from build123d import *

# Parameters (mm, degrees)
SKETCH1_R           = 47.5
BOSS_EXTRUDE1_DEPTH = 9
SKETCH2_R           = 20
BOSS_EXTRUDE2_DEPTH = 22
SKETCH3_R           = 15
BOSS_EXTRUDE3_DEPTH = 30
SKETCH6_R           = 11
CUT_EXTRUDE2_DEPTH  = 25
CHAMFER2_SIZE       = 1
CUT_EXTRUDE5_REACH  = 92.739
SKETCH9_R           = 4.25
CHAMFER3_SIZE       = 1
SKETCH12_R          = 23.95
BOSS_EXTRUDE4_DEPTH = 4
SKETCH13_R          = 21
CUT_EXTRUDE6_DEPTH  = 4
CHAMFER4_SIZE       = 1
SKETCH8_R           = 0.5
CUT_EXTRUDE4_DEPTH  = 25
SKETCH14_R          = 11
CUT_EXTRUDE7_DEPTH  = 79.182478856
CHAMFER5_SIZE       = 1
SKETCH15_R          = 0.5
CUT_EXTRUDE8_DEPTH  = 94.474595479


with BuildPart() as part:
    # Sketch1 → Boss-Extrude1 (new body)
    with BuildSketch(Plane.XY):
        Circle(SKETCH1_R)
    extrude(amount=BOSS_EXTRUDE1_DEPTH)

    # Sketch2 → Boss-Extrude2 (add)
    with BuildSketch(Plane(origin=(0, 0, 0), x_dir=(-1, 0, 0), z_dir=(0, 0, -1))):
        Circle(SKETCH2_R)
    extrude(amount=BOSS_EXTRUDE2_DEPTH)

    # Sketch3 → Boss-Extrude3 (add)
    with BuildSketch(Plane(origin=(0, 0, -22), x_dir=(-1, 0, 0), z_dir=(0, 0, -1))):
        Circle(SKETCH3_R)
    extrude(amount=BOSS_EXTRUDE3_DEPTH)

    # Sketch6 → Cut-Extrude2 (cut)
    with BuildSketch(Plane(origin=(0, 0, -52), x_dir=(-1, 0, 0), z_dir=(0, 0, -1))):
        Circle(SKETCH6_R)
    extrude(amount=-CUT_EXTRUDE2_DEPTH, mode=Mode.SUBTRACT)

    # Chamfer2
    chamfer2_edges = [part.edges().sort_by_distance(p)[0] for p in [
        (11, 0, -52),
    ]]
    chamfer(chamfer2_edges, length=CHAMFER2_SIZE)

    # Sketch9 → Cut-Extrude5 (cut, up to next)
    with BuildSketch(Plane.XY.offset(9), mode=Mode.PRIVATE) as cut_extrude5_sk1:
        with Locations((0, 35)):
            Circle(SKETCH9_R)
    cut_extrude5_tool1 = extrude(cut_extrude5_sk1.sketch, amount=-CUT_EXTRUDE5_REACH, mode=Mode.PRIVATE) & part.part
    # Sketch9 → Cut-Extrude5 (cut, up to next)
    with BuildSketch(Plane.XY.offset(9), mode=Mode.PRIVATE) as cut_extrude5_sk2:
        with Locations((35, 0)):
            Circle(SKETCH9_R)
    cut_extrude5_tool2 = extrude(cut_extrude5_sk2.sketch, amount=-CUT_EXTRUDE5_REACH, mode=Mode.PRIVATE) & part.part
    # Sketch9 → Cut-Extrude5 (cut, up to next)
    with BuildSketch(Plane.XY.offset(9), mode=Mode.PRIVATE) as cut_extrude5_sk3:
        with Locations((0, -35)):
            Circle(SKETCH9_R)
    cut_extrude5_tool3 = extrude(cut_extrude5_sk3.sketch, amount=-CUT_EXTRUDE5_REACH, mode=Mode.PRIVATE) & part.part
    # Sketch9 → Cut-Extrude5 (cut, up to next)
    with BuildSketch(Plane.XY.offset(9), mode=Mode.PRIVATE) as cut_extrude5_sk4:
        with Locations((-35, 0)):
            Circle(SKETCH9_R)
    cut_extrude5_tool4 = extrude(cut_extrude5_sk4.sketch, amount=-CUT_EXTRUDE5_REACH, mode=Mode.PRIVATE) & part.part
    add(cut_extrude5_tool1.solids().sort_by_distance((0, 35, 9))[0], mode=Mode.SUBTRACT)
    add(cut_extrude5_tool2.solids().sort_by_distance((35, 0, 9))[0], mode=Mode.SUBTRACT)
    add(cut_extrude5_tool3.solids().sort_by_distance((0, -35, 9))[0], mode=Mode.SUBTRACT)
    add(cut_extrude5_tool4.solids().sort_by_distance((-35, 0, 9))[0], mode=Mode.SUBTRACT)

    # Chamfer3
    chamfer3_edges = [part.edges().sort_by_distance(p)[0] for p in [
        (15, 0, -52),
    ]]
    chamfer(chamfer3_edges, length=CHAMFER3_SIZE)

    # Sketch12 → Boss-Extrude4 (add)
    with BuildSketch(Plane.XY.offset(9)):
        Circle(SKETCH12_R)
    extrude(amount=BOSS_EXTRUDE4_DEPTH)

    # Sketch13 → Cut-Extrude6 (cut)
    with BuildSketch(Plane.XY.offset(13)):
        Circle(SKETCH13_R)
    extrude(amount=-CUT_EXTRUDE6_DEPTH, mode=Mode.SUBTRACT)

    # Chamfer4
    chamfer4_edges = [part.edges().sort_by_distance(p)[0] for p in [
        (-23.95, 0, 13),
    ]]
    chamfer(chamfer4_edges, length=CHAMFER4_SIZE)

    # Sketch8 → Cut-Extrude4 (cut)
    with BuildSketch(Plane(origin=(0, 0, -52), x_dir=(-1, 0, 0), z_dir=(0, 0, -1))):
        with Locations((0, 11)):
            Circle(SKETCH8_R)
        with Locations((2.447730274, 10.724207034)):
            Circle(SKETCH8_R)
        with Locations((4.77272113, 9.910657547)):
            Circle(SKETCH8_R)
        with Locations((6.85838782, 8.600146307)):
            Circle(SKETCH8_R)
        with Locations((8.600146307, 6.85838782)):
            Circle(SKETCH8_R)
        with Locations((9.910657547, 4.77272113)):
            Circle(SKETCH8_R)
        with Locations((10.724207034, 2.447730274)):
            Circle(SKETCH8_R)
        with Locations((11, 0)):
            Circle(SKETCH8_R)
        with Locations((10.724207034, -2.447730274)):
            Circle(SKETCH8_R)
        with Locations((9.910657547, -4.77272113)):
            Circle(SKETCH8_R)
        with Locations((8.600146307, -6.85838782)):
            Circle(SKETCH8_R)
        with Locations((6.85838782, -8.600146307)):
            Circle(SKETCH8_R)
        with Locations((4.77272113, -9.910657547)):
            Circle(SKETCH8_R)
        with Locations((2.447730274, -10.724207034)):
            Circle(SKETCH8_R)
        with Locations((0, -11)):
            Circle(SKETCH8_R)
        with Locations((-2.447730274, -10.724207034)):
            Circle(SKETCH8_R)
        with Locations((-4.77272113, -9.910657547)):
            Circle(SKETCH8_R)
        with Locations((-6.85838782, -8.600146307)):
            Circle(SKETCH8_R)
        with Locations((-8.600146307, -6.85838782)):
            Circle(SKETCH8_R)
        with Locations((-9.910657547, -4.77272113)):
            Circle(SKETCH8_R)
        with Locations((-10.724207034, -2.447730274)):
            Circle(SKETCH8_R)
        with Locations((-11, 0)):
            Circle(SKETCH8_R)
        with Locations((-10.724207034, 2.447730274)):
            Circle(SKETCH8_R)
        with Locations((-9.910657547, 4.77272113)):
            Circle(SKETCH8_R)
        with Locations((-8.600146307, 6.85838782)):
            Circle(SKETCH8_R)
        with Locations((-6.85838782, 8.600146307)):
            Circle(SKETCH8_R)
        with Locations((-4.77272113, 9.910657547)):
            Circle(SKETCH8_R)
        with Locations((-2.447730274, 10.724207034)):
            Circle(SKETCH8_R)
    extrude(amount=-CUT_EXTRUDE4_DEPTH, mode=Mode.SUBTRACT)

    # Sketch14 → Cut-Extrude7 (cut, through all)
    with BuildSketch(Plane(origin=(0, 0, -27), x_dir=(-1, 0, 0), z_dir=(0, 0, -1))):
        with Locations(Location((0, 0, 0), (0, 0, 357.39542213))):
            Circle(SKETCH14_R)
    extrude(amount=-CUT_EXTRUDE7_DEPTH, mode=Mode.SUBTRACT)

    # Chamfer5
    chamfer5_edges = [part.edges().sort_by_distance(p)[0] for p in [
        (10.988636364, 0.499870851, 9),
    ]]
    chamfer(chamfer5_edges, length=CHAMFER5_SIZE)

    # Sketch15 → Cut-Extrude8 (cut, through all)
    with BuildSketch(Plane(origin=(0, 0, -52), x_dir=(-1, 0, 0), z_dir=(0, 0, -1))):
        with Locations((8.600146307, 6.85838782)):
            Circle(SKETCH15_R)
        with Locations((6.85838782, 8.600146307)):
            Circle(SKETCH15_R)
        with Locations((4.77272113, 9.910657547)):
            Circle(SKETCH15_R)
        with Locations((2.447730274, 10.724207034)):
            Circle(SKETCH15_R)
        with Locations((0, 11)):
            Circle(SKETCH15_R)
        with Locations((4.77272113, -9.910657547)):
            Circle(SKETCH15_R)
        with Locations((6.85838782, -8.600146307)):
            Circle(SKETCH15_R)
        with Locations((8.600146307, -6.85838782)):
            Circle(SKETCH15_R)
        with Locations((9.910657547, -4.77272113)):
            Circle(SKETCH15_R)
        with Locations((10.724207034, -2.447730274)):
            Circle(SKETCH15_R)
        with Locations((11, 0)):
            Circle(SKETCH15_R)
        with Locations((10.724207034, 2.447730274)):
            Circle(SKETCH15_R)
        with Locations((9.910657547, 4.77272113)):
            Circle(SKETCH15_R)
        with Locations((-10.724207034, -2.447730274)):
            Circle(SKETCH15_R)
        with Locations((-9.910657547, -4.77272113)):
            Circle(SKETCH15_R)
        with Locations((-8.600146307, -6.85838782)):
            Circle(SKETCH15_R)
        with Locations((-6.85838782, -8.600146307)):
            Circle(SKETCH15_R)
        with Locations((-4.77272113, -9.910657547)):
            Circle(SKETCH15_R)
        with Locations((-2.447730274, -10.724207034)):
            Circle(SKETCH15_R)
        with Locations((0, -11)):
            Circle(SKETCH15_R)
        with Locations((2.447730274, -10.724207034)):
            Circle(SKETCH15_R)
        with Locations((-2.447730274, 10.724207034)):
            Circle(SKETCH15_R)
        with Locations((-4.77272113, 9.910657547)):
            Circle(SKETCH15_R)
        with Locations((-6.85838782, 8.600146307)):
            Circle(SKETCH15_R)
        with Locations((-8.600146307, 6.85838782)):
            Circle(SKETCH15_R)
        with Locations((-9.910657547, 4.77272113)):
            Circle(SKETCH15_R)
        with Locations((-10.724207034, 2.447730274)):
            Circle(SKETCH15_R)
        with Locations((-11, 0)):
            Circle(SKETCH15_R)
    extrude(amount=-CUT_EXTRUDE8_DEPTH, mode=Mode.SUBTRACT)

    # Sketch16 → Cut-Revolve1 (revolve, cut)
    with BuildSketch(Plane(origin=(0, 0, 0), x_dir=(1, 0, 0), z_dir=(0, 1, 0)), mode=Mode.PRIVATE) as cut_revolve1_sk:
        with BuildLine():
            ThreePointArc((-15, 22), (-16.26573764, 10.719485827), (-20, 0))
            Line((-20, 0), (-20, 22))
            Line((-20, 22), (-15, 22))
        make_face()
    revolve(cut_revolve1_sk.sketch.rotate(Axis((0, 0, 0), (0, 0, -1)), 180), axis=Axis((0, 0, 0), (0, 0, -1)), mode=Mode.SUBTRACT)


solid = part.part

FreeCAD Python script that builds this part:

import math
import FreeCAD as App
import Part
import Sketcher


def edges_at(feature, points):
    """Names of the edges that pass closest to the given points."""
    edges = feature.Shape.Edges
    near = lambda p: min(range(len(edges)), key=lambda i: edges[i].distToShape(Part.Vertex(*p))[0])
    return sorted({f"Edge{near(p) + 1}" for p in points})

doc = App.newDocument("Part")
body = doc.addObject("PartDesign::Body", "Body")

# Sketch on XY plane
sketch1 = body.newObject("Sketcher::SketchObject", "Sketch")
sketch1.AttachmentSupport = (doc.getObject("XY_Plane"), [""])
sketch1.MapMode = "FlatFace"
sketch1.addGeometry(Part.Circle(App.Vector(0, 0, 0), App.Vector(0, 0, 1), 48), False)
sketch1.addConstraint([
    Sketcher.Constraint("Coincident", 0, 3, -1, 1),
    Sketcher.Constraint("Diameter", 0, 95.0),
])
pad1 = body.newObject("PartDesign::Pad", "Pad")
pad1.Profile = sketch1
pad1.Length = 9

# Sketch on XY plane
sketch2 = body.newObject("Sketcher::SketchObject", "Sketch001")
sketch2.AttachmentSupport = (doc.getObject("XY_Plane"), [""])
sketch2.MapMode = "FlatFace"
sketch2.addGeometry(Part.Circle(App.Vector(0, 0, 0), App.Vector(0, 0, 1), 20), False)
sketch2.addConstraint([
    Sketcher.Constraint("Coincident", 0, 3, -1, 1),
    Sketcher.Constraint("Diameter", 0, 40.0),
])
pad2 = body.newObject("PartDesign::Pad", "Pad001")
pad2.Profile = sketch2
pad2.Length = 22
pad2.Reversed = True

# Sketch on XY plane
sketch3 = body.newObject("Sketcher::SketchObject", "Sketch002")
sketch3.AttachmentSupport = (doc.getObject("XY_Plane"), [""])
sketch3.MapMode = "FlatFace"
sketch3.AttachmentOffset = App.Placement(App.Vector(0, 0, -22), App.Rotation())
sketch3.addGeometry(Part.Circle(App.Vector(0, 0, 0), App.Vector(0, 0, 1), 15), False)
sketch3.addConstraint([
    Sketcher.Constraint("Coincident", 0, 3, -1, 1),
    Sketcher.Constraint("Diameter", 0, 30.0),
])
pad3 = body.newObject("PartDesign::Pad", "Pad002")
pad3.Profile = sketch3
pad3.Length = 30
pad3.Reversed = True

# Sketch on XY plane
sketch4 = body.newObject("Sketcher::SketchObject", "Sketch003")
sketch4.AttachmentSupport = (doc.getObject("XY_Plane"), [""])
sketch4.MapMode = "FlatFace"
sketch4.AttachmentOffset = App.Placement(App.Vector(0, 0, -52), App.Rotation())
sketch4.addGeometry(Part.Circle(App.Vector(0, 0, 0), App.Vector(0, 0, 1), 11), False)
sketch4.addConstraint([
    Sketcher.Constraint("Coincident", 0, 3, -1, 1),
    Sketcher.Constraint("Diameter", 0, 22.0),
])
pocket1 = body.newObject("PartDesign::Pocket", "Pocket")
pocket1.Profile = sketch4
pocket1.Length = 25
pocket1.Reversed = True
doc.recompute()

chamfer = body.newObject("PartDesign::Chamfer", "Chamfer")
chamfer.Base = (pocket1, edges_at(pocket1, [(11, 0, -52)]))
chamfer.Size = 1

# Sketch on XY plane
sketch5 = body.newObject("Sketcher::SketchObject", "Sketch004")
sketch5.AttachmentSupport = (doc.getObject("XY_Plane"), [""])
sketch5.MapMode = "FlatFace"
sketch5.AttachmentOffset = App.Placement(App.Vector(0, 0, 9), App.Rotation())
sketch5.addGeometry(Part.Circle(App.Vector(0, 35, 0), App.Vector(0, 0, 1), 4.2), False)
sketch5.addConstraint([
    Sketcher.Constraint("PointOnObject", 0, 3, -2),
    Sketcher.Constraint("Diameter", 0, 8.5),
    Sketcher.Constraint("DistanceY", -1, 1, 0, 3, 35.0),
])
pocket2 = body.newObject("PartDesign::Pocket", "Pocket001")
pocket2.Profile = sketch5
pocket2.Type = "UpToFirst"

# Sketch on XY plane
sketch6 = body.newObject("Sketcher::SketchObject", "Sketch005")
sketch6.AttachmentSupport = (doc.getObject("XY_Plane"), [""])
sketch6.MapMode = "FlatFace"
sketch6.AttachmentOffset = App.Placement(App.Vector(0, 0, 9), App.Rotation())
sketch6.addGeometry(Part.Circle(App.Vector(35, 0, 0), App.Vector(0, 0, 1), 4.2), False)
sketch6.addConstraint([
    Sketcher.Constraint("PointOnObject", 0, 3, -1),
    Sketcher.Constraint("Diameter", 0, 8.5),
    Sketcher.Constraint("DistanceX", -1, 1, 0, 3, 35.0),
])
pocket3 = body.newObject("PartDesign::Pocket", "Pocket002")
pocket3.Profile = sketch6
pocket3.Type = "UpToFirst"

# Sketch on XY plane
sketch7 = body.newObject("Sketcher::SketchObject", "Sketch006")
sketch7.AttachmentSupport = (doc.getObject("XY_Plane"), [""])
sketch7.MapMode = "FlatFace"
sketch7.AttachmentOffset = App.Placement(App.Vector(0, 0, 9), App.Rotation())
sketch7.addGeometry(Part.Circle(App.Vector(0, -35, 0), App.Vector(0, 0, 1), 4.2), False)
sketch7.addConstraint([
    Sketcher.Constraint("PointOnObject", 0, 3, -2),
    Sketcher.Constraint("Diameter", 0, 8.5),
    Sketcher.Constraint("DistanceY", 0, 3, -1, 1, 35.0),
])
pocket4 = body.newObject("PartDesign::Pocket", "Pocket003")
pocket4.Profile = sketch7
pocket4.Type = "UpToFirst"

# Sketch on XY plane
sketch8 = body.newObject("Sketcher::SketchObject", "Sketch007")
sketch8.AttachmentSupport = (doc.getObject("XY_Plane"), [""])
sketch8.MapMode = "FlatFace"
sketch8.AttachmentOffset = App.Placement(App.Vector(0, 0, 9), App.Rotation())
sketch8.addGeometry(Part.Circle(App.Vector(-35, 0, 0), App.Vector(0, 0, 1), 4.2), False)
sketch8.addConstraint([
    Sketcher.Constraint("PointOnObject", 0, 3, -1),
    Sketcher.Constraint("Diameter", 0, 8.5),
    Sketcher.Constraint("DistanceX", 0, 3, -1, 1, 35.0),
])
pocket5 = body.newObject("PartDesign::Pocket", "Pocket004")
pocket5.Profile = sketch8
pocket5.Type = "UpToFirst"
doc.recompute()

chamfer2 = body.newObject("PartDesign::Chamfer", "Chamfer001")
chamfer2.Base = (pocket5, edges_at(pocket5, [(15, 0, -52)]))
chamfer2.Size = 1

# Sketch on XY plane
sketch9 = body.newObject("Sketcher::SketchObject", "Sketch008")
sketch9.AttachmentSupport = (doc.getObject("XY_Plane"), [""])
sketch9.MapMode = "FlatFace"
sketch9.AttachmentOffset = App.Placement(App.Vector(0, 0, 9), App.Rotation())
sketch9.addGeometry(Part.Circle(App.Vector(0, 0, 0), App.Vector(0, 0, 1), 24), False)
sketch9.addConstraint([
    Sketcher.Constraint("Coincident", 0, 3, -1, 1),
    Sketcher.Constraint("Diameter", 0, 47.9),
])
pad4 = body.newObject("PartDesign::Pad", "Pad003")
pad4.Profile = sketch9
pad4.Length = 4

# Sketch on XY plane
sketch10 = body.newObject("Sketcher::SketchObject", "Sketch009")
sketch10.AttachmentSupport = (doc.getObject("XY_Plane"), [""])
sketch10.MapMode = "FlatFace"
sketch10.AttachmentOffset = App.Placement(App.Vector(0, 0, 13), App.Rotation())
sketch10.addGeometry(Part.Circle(App.Vector(0, 0, 0), App.Vector(0, 0, 1), 21), False)
sketch10.addConstraint([
    Sketcher.Constraint("Coincident", 0, 3, -1, 1),
    Sketcher.Constraint("Diameter", 0, 42.0),
])
pocket6 = body.newObject("PartDesign::Pocket", "Pocket005")
pocket6.Profile = sketch10
pocket6.Length = 4
doc.recompute()

chamfer3 = body.newObject("PartDesign::Chamfer", "Chamfer002")
chamfer3.Base = (pocket6, edges_at(pocket6, [(-23.95, 0, 13)]))
chamfer3.Size = 1

# Sketch on XY plane
sketch11 = body.newObject("Sketcher::SketchObject", "Sketch010")
sketch11.AttachmentSupport = (doc.getObject("XY_Plane"), [""])
sketch11.MapMode = "FlatFace"
sketch11.AttachmentOffset = App.Placement(App.Vector(0, 0, -52), App.Rotation())
sketch11.addGeometry([
    Part.Circle(App.Vector(0, 11, 0), App.Vector(0, 0, 1), 0.5),  # 0
    Part.Circle(App.Vector(-2.4, 10.7, 0), App.Vector(0, 0, 1), 0.5),  # 1
    Part.Circle(App.Vector(-4.8, 9.9, 0), App.Vector(0, 0, 1), 0.5),  # 2
    Part.Circle(App.Vector(-6.9, 8.6, 0), App.Vector(0, 0, 1), 0.5),  # 3
    Part.Circle(App.Vector(-8.6, 6.9, 0), App.Vector(0, 0, 1), 0.5),  # 4
    Part.Circle(App.Vector(-9.9, 4.8, 0), App.Vector(0, 0, 1), 0.5),  # 5
    Part.Circle(App.Vector(-10.7, 2.4, 0), App.Vector(0, 0, 1), 0.5),  # 6
    Part.Circle(App.Vector(-11, 0, 0), App.Vector(0, 0, 1), 0.5),  # 7
    Part.Circle(App.Vector(-10.7, -2.4, 0), App.Vector(0, 0, 1), 0.5),  # 8
    Part.Circle(App.Vector(-9.9, -4.8, 0), App.Vector(0, 0, 1), 0.5),  # 9
    Part.Circle(App.Vector(-8.6, -6.9, 0), App.Vector(0, 0, 1), 0.5),  # 10
    Part.Circle(App.Vector(-6.9, -8.6, 0), App.Vector(0, 0, 1), 0.5),  # 11
    Part.Circle(App.Vector(-4.8, -9.9, 0), App.Vector(0, 0, 1), 0.5),  # 12
    Part.Circle(App.Vector(-2.4, -10.7, 0), App.Vector(0, 0, 1), 0.5),  # 13
    Part.Circle(App.Vector(0, -11, 0), App.Vector(0, 0, 1), 0.5),  # 14
    Part.Circle(App.Vector(2.4, -10.7, 0), App.Vector(0, 0, 1), 0.5),  # 15
    Part.Circle(App.Vector(4.8, -9.9, 0), App.Vector(0, 0, 1), 0.5),  # 16
    Part.Circle(App.Vector(6.9, -8.6, 0), App.Vector(0, 0, 1), 0.5),  # 17
    Part.Circle(App.Vector(8.6, -6.9, 0), App.Vector(0, 0, 1), 0.5),  # 18
    Part.Circle(App.Vector(9.9, -4.8, 0), App.Vector(0, 0, 1), 0.5),  # 19
    Part.Circle(App.Vector(10.7, -2.4, 0), App.Vector(0, 0, 1), 0.5),  # 20
    Part.Circle(App.Vector(11, 0, 0), App.Vector(0, 0, 1), 0.5),  # 21
    Part.Circle(App.Vector(10.7, 2.4, 0), App.Vector(0, 0, 1), 0.5),  # 22
    Part.Circle(App.Vector(9.9, 4.8, 0), App.Vector(0, 0, 1), 0.5),  # 23
    Part.Circle(App.Vector(8.6, 6.9, 0), App.Vector(0, 0, 1), 0.5),  # 24
    Part.Circle(App.Vector(6.9, 8.6, 0), App.Vector(0, 0, 1), 0.5),  # 25
    Part.Circle(App.Vector(4.8, 9.9, 0), App.Vector(0, 0, 1), 0.5),  # 26
    Part.Circle(App.Vector(2.4, 10.7, 0), App.Vector(0, 0, 1), 0.5),  # 27
], False)
sketch11.addConstraint([
    Sketcher.Constraint("Equal", 0, 1),
    Sketcher.Constraint("Equal", 1, 2),
    Sketcher.Constraint("Equal", 2, 3),
    Sketcher.Constraint("Equal", 3, 4),
    Sketcher.Constraint("Equal", 4, 5),
    Sketcher.Constraint("Equal", 5, 6),
    Sketcher.Constraint("Equal", 6, 7),
    Sketcher.Constraint("Equal", 7, 8),
    Sketcher.Constraint("Equal", 8, 9),
    Sketcher.Constraint("Equal", 9, 10),
    Sketcher.Constraint("Equal", 10, 11),
    Sketcher.Constraint("Equal", 11, 12),
    Sketcher.Constraint("Equal", 12, 13),
    Sketcher.Constraint("Equal", 13, 14),
    Sketcher.Constraint("Equal", 14, 15),
    Sketcher.Constraint("Equal", 15, 16),
    Sketcher.Constraint("Equal", 16, 17),
    Sketcher.Constraint("Equal", 17, 18),
    Sketcher.Constraint("Equal", 18, 19),
    Sketcher.Constraint("Equal", 19, 20),
    Sketcher.Constraint("Equal", 20, 21),
    Sketcher.Constraint("Equal", 21, 22),
    Sketcher.Constraint("Equal", 22, 23),
    Sketcher.Constraint("Equal", 23, 24),
    Sketcher.Constraint("Equal", 24, 25),
    Sketcher.Constraint("Equal", 25, 26),
    Sketcher.Constraint("Equal", 26, 27),
    Sketcher.Constraint("Symmetric", 0, 3, 14, 3, -1, 1),
    Sketcher.Constraint("Symmetric", 1, 3, 15, 3, -1, 1),
    Sketcher.Constraint("Symmetric", 2, 3, 16, 3, -1, 1),
    Sketcher.Constraint("Symmetric", 3, 3, 17, 3, -1, 1),
    Sketcher.Constraint("Symmetric", 4, 3, 18, 3, -1, 1),
    Sketcher.Constraint("Symmetric", 5, 3, 19, 3, -1, 1),
    Sketcher.Constraint("Symmetric", 6, 3, 20, 3, -1, 1),
    Sketcher.Constraint("Symmetric", 7, 3, 21, 3, -1, 1),
    Sketcher.Constraint("Symmetric", 8, 3, 22, 3, -1, 1),
    Sketcher.Constraint("Symmetric", 9, 3, 23, 3, -1, 1),
    Sketcher.Constraint("Symmetric", 10, 3, 24, 3, -1, 1),
    Sketcher.Constraint("Symmetric", 11, 3, 25, 3, -1, 1),
    Sketcher.Constraint("Symmetric", 12, 3, 26, 3, -1, 1),
    Sketcher.Constraint("Symmetric", 13, 3, 27, 3, -1, 1),
    Sketcher.Constraint("Symmetric", 13, 3, 15, 3, -2),
    Sketcher.Constraint("Symmetric", 12, 3, 16, 3, -2),
    Sketcher.Constraint("Symmetric", 11, 3, 17, 3, -2),
    Sketcher.Constraint("Symmetric", 10, 3, 18, 3, -2),
    Sketcher.Constraint("Symmetric", 9, 3, 19, 3, -2),
    Sketcher.Constraint("Symmetric", 8, 3, 20, 3, -2),
    Sketcher.Constraint("PointOnObject", 0, 3, -2),
    Sketcher.Constraint("PointOnObject", 7, 3, -1),
    Sketcher.Constraint("Diameter", 0, 1.0),
    Sketcher.Constraint("DistanceY", -1, 1, 0, 3, 11.0),
    Sketcher.Constraint("DistanceX", 7, 3, -1, 1, 11.0),
    Sketcher.Constraint("DistanceX", 1, 3, -1, 1, 2.44773),
    Sketcher.Constraint("DistanceX", 2, 3, -1, 1, 4.772721),
    Sketcher.Constraint("DistanceY", -1, 1, 5, 3, 4.772721),
    Sketcher.Constraint("DistanceY", -1, 1, 6, 3, 2.44773),
    Sketcher.Constraint("DistanceY", 2, 3, 1, 3, 0.813549),
    Sketcher.Constraint("DistanceY", 3, 3, 2, 3, 1.310511),
    Sketcher.Constraint("DistanceX", 4, 3, 3, 3, 1.741758),
    Sketcher.Constraint("DistanceY", 4, 3, 3, 3, 1.741758),
    Sketcher.Constraint("DistanceX", 5, 3, 4, 3, 1.310511),
    Sketcher.Constraint("DistanceX", 6, 3, 5, 3, 0.813549),
    Sketcher.Constraint("DistanceY", 8, 3, 4, 3, 9.306118),
    Sketcher.Constraint("DistanceX", 11, 3, 15, 3, 9.306118),
])
pocket7 = body.newObject("PartDesign::Pocket", "Pocket006")
pocket7.Profile = sketch11
pocket7.Length = 25
pocket7.Reversed = True

# Sketch on XY plane
sketch12 = body.newObject("Sketcher::SketchObject", "Sketch011")
sketch12.AttachmentSupport = (doc.getObject("XY_Plane"), [""])
sketch12.MapMode = "FlatFace"
sketch12.AttachmentOffset = App.Placement(App.Vector(0, 0, -27), App.Rotation())
sketch12.addGeometry(Part.Circle(App.Vector(0, 0, 0), App.Vector(0, 0, 1), 11), False)
sketch12.addConstraint([
    Sketcher.Constraint("Coincident", 0, 3, -1, 1),
    Sketcher.Constraint("Diameter", 0, 22.0),
])
pocket8 = body.newObject("PartDesign::Pocket", "Pocket007")
pocket8.Profile = sketch12
pocket8.Type = "ThroughAll"
pocket8.Reversed = True
doc.recompute()

chamfer4 = body.newObject("PartDesign::Chamfer", "Chamfer003")
chamfer4.Base = (pocket8, edges_at(pocket8, [(10.989, 0.5, 9)]))
chamfer4.Size = 1

# Sketch on XY plane
sketch13 = body.newObject("Sketcher::SketchObject", "Sketch012")
sketch13.AttachmentSupport = (doc.getObject("XY_Plane"), [""])
sketch13.MapMode = "FlatFace"
sketch13.AttachmentOffset = App.Placement(App.Vector(0, 0, -52), App.Rotation())
sketch13.addGeometry([
    Part.Circle(App.Vector(-8.6, 6.9, 0), App.Vector(0, 0, 1), 0.5),  # 0
    Part.Circle(App.Vector(-6.9, 8.6, 0), App.Vector(0, 0, 1), 0.5),  # 1
    Part.Circle(App.Vector(-4.8, 9.9, 0), App.Vector(0, 0, 1), 0.5),  # 2
    Part.Circle(App.Vector(-2.4, 10.7, 0), App.Vector(0, 0, 1), 0.5),  # 3
    Part.Circle(App.Vector(0, 11, 0), App.Vector(0, 0, 1), 0.5),  # 4
    Part.Circle(App.Vector(-4.8, -9.9, 0), App.Vector(0, 0, 1), 0.5),  # 5
    Part.Circle(App.Vector(-6.9, -8.6, 0), App.Vector(0, 0, 1), 0.5),  # 6
    Part.Circle(App.Vector(-8.6, -6.9, 0), App.Vector(0, 0, 1), 0.5),  # 7
    Part.Circle(App.Vector(-9.9, -4.8, 0), App.Vector(0, 0, 1), 0.5),  # 8
    Part.Circle(App.Vector(-10.7, -2.4, 0), App.Vector(0, 0, 1), 0.5),  # 9
    Part.Circle(App.Vector(-11, 0, 0), App.Vector(0, 0, 1), 0.5),  # 10
    Part.Circle(App.Vector(-10.7, 2.4, 0), App.Vector(0, 0, 1), 0.5),  # 11
    Part.Circle(App.Vector(-9.9, 4.8, 0), App.Vector(0, 0, 1), 0.5),  # 12
    Part.Circle(App.Vector(10.7, -2.4, 0), App.Vector(0, 0, 1), 0.5),  # 13
    Part.Circle(App.Vector(9.9, -4.8, 0), App.Vector(0, 0, 1), 0.5),  # 14
    Part.Circle(App.Vector(8.6, -6.9, 0), App.Vector(0, 0, 1), 0.5),  # 15
    Part.Circle(App.Vector(6.9, -8.6, 0), App.Vector(0, 0, 1), 0.5),  # 16
    Part.Circle(App.Vector(4.8, -9.9, 0), App.Vector(0, 0, 1), 0.5),  # 17
    Part.Circle(App.Vector(2.4, -10.7, 0), App.Vector(0, 0, 1), 0.5),  # 18
    Part.Circle(App.Vector(0, -11, 0), App.Vector(0, 0, 1), 0.5),  # 19
    Part.Circle(App.Vector(-2.4, -10.7, 0), App.Vector(0, 0, 1), 0.5),  # 20
    Part.Circle(App.Vector(2.4, 10.7, 0), App.Vector(0, 0, 1), 0.5),  # 21
    Part.Circle(App.Vector(4.8, 9.9, 0), App.Vector(0, 0, 1), 0.5),  # 22
    Part.Circle(App.Vector(6.9, 8.6, 0), App.Vector(0, 0, 1), 0.5),  # 23
    Part.Circle(App.Vector(8.6, 6.9, 0), App.Vector(0, 0, 1), 0.5),  # 24
    Part.Circle(App.Vector(9.9, 4.8, 0), App.Vector(0, 0, 1), 0.5),  # 25
    Part.Circle(App.Vector(10.7, 2.4, 0), App.Vector(0, 0, 1), 0.5),  # 26
    Part.Circle(App.Vector(11, 0, 0), App.Vector(0, 0, 1), 0.5),  # 27
], False)
sketch13.addConstraint([
    Sketcher.Constraint("Equal", 0, 1),
    Sketcher.Constraint("Equal", 1, 2),
    Sketcher.Constraint("Equal", 2, 3),
    Sketcher.Constraint("Equal", 3, 4),
    Sketcher.Constraint("Equal", 4, 5),
    Sketcher.Constraint("Equal", 5, 6),
    Sketcher.Constraint("Equal", 6, 7),
    Sketcher.Constraint("Equal", 7, 8),
    Sketcher.Constraint("Equal", 8, 9),
    Sketcher.Constraint("Equal", 9, 10),
    Sketcher.Constraint("Equal", 10, 11),
    Sketcher.Constraint("Equal", 11, 12),
    Sketcher.Constraint("Equal", 12, 13),
    Sketcher.Constraint("Equal", 13, 14),
    Sketcher.Constraint("Equal", 14, 15),
    Sketcher.Constraint("Equal", 15, 16),
    Sketcher.Constraint("Equal", 16, 17),
    Sketcher.Constraint("Equal", 17, 18),
    Sketcher.Constraint("Equal", 18, 19),
    Sketcher.Constraint("Equal", 19, 20),
    Sketcher.Constraint("Equal", 20, 21),
    Sketcher.Constraint("Equal", 21, 22),
    Sketcher.Constraint("Equal", 22, 23),
    Sketcher.Constraint("Equal", 23, 24),
    Sketcher.Constraint("Equal", 24, 25),
    Sketcher.Constraint("Equal", 25, 26),
    Sketcher.Constraint("Equal", 26, 27),
    Sketcher.Constraint("Symmetric", 11, 3, 13, 3, -1, 1),
    Sketcher.Constraint("Symmetric", 12, 3, 14, 3, -1, 1),
    Sketcher.Constraint("Symmetric", 0, 3, 15, 3, -1, 1),
    Sketcher.Constraint("Symmetric", 1, 3, 16, 3, -1, 1),
    Sketcher.Constraint("Symmetric", 2, 3, 17, 3, -1, 1),
    Sketcher.Constraint("Symmetric", 3, 3, 18, 3, -1, 1),
    Sketcher.Constraint("Symmetric", 4, 3, 19, 3, -1, 1),
    Sketcher.Constraint("Symmetric", 20, 3, 21, 3, -1, 1),
    Sketcher.Constraint("Symmetric", 5, 3, 22, 3, -1, 1),
    Sketcher.Constraint("Symmetric", 6, 3, 23, 3, -1, 1),
    Sketcher.Constraint("Symmetric", 7, 3, 24, 3, -1, 1),
    Sketcher.Constraint("Symmetric", 8, 3, 25, 3, -1, 1),
    Sketcher.Constraint("Symmetric", 9, 3, 26, 3, -1, 1),
    Sketcher.Constraint("Symmetric", 10, 3, 27, 3, -1, 1),
    Sketcher.Constraint("Symmetric", 9, 3, 13, 3, -2),
    Sketcher.Constraint("Symmetric", 8, 3, 14, 3, -2),
    Sketcher.Constraint("Symmetric", 7, 3, 15, 3, -2),
    Sketcher.Constraint("Symmetric", 6, 3, 16, 3, -2),
    Sketcher.Constraint("Symmetric", 5, 3, 17, 3, -2),
    Sketcher.Constraint("Symmetric", 18, 3, 20, 3, -2),
    Sketcher.Constraint("PointOnObject", 4, 3, -2),
    Sketcher.Constraint("PointOnObject", 10, 3, -1),
    Sketcher.Constraint("Diameter", 0, 1.0),
    Sketcher.Constraint("DistanceY", -1, 1, 4, 3, 11.0),
    Sketcher.Constraint("DistanceX", 10, 3, -1, 1, 11.0),
    Sketcher.Constraint("DistanceX", 2, 3, -1, 1, 4.772721),
    Sketcher.Constraint("DistanceX", 3, 3, -1, 1, 2.44773),
    Sketcher.Constraint("DistanceY", 8, 3, -1, 1, 4.772721),
    Sketcher.Constraint("DistanceY", 9, 3, -1, 1, 2.44773),
    Sketcher.Constraint("DistanceX", 0, 3, 1, 3, 1.741758),
    Sketcher.Constraint("DistanceY", 0, 3, 1, 3, 1.741758),
    Sketcher.Constraint("DistanceY", 1, 3, 2, 3, 1.310511),
    Sketcher.Constraint("DistanceY", 2, 3, 3, 3, 0.813549),
    Sketcher.Constraint("DistanceX", 8, 3, 7, 3, 1.310511),
    Sketcher.Constraint("DistanceY", 8, 3, 0, 3, 11.631109),
    Sketcher.Constraint("DistanceX", 9, 3, 8, 3, 0.813549),
    Sketcher.Constraint("DistanceX", 5, 3, 13, 3, 15.496928),
])
pocket9 = body.newObject("PartDesign::Pocket", "Pocket008")
pocket9.Profile = sketch13
pocket9.Type = "ThroughAll"
pocket9.Reversed = True

# Sketch on XZ plane
sketch14 = body.newObject("Sketcher::SketchObject", "Sketch013")
sketch14.AttachmentSupport = (doc.getObject("XZ_Plane"), [""])
sketch14.MapMode = "FlatFace"
sketch14.addGeometry([
    Part.ArcOfCircle(Part.Circle(App.Vector(-66, -22, 0), App.Vector(0, 0, 1), 51), math.radians(0), math.radians(26)),
    Part.LineSegment(App.Vector(-15, -22, 0), App.Vector(-20, -22, 0)),
    Part.LineSegment(App.Vector(-20, -22, 0), App.Vector(-20, 0, 0)),
], False)
sketch14.addConstraint([
    Sketcher.Constraint("Coincident", 0, 1, 1, 1),
    Sketcher.Constraint("Coincident", 1, 2, 2, 1),
    Sketcher.Constraint("Coincident", 2, 2, 0, 2),
    Sketcher.Constraint("Horizontal", 1),
    Sketcher.Constraint("Vertical", 2),
    Sketcher.Constraint("PointOnObject", 2, 2, -1),
    Sketcher.Constraint("Radius", 0, 50.9),
    Sketcher.Constraint("DistanceX", 1, 2, 1, 1, 5.0),
    Sketcher.Constraint("DistanceY", 2, 1, 2, 2, 22.0),
    Sketcher.Constraint("DistanceX", 0, 1, -1, 1, 15.0),
])
groove = body.newObject("PartDesign::Groove", "Groove")
groove.Profile = sketch14
groove.ReferenceAxis = (sketch14, ["V_Axis"])
groove.Angle = 360

doc.recompute()
